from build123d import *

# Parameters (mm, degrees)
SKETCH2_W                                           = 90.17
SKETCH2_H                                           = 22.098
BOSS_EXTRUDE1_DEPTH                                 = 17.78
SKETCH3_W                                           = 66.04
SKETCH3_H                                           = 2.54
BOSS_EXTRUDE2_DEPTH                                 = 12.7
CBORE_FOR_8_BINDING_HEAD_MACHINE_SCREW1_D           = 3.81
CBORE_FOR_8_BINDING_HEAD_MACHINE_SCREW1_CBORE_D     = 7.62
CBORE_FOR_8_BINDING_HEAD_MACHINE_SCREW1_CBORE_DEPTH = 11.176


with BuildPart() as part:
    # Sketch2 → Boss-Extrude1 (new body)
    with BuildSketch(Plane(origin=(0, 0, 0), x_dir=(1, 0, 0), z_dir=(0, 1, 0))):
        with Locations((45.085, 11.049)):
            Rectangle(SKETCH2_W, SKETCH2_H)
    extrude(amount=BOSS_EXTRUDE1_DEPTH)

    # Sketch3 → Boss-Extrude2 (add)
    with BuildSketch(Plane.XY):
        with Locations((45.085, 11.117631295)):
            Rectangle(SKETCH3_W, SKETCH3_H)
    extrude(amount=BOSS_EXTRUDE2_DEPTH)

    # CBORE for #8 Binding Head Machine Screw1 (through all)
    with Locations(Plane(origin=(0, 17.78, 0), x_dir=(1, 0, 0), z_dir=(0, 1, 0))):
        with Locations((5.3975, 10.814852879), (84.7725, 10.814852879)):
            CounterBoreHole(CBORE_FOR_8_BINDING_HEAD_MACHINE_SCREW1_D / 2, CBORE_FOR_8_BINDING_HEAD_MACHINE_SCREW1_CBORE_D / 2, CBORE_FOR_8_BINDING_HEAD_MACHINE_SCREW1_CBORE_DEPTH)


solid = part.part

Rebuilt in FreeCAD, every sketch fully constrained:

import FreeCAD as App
import Part
import Sketcher
Q = App.Units.Quantity

doc = App.newDocument("Part")
body = doc.addObject("PartDesign::Body", "Body")

sketch1 = doc.addObject("Sketcher::SketchObject", "Sketch")
body.addObject(sketch1)
sketch1.AttachmentSupport = (doc.XZ_Plane, [""])
sketch1.MapMode = "FlatFace"
sketch1.addGeometry(Part.LineSegment(App.Vector(0, -22, 0), App.Vector(0, 0, 0)), False)
sketch1.addGeometry(Part.LineSegment(App.Vector(0, 0, 0), App.Vector(90, 0, 0)), False)
sketch1.addGeometry(Part.LineSegment(App.Vector(90, 0, 0), App.Vector(90, -22, 0)), False)
sketch1.addGeometry(Part.LineSegment(App.Vector(90, -22, 0), App.Vector(0, -22, 0)), False)
sketch1.addConstraint(Sketcher.Constraint("Coincident", 0, 2, 1, 1))
sketch1.addConstraint(Sketcher.Constraint("Coincident", 1, 2, 2, 1))
sketch1.addConstraint(Sketcher.Constraint("Coincident", 2, 2, 3, 1))
sketch1.addConstraint(Sketcher.Constraint("Coincident", 3, 2, 0, 1))
sketch1.addConstraint(Sketcher.Constraint("Vertical", 0))
sketch1.addConstraint(Sketcher.Constraint("Horizontal", 1))
sketch1.addConstraint(Sketcher.Constraint("Vertical", 2))
sketch1.addConstraint(Sketcher.Constraint("Horizontal", 3))
sketch1.addConstraint(Sketcher.Constraint("Coincident", 0, 2, -1, 1))
sketch1.addConstraint(Sketcher.Constraint("DistanceX", 1, 1, 1, 2, Q("3.55 in")))
sketch1.addConstraint(Sketcher.Constraint("DistanceY", 0, 1, 0, 2, Q("0.87 in")))
pad1 = doc.addObject("PartDesign::Pad", "Pad")
body.addObject(pad1)
pad1.Profile = sketch1
pad1.Length = Q("0.7 in")
pad1.Reversed = True

sketch2 = doc.addObject("Sketcher::SketchObject", "Sketch001")
body.addObject(sketch2)
sketch2.AttachmentSupport = (doc.XY_Plane, [""])
sketch2.MapMode = "FlatFace"
sketch2.addGeometry(Part.LineSegment(App.Vector(12.1, 12.4, 0), App.Vector(12.1, 9.8, 0)), False)
sketch2.addGeometry(Part.LineSegment(App.Vector(12.1, 9.8, 0), App.Vector(78.1, 9.8, 0)), False)
sketch2.addGeometry(Part.LineSegment(App.Vector(78.1, 9.8, 0), App.Vector(78.1, 12.4, 0)), False)
sketch2.addGeometry(Part.LineSegment(App.Vector(78.1, 12.4, 0), App.Vector(12.1, 12.4, 0)), False)
sketch2.addConstraint(Sketcher.Constraint("Coincident", 0, 2, 1, 1))
sketch2.addConstraint(Sketcher.Constraint("Coincident", 1, 2, 2, 1))
sketch2.addConstraint(Sketcher.Constraint("Coincident", 2, 2, 3, 1))
sketch2.addConstraint(Sketcher.Constraint("Coincident", 3, 2, 0, 1))
sketch2.addConstraint(Sketcher.Constraint("Vertical", 0))
sketch2.addConstraint(Sketcher.Constraint("Horizontal", 1))
sketch2.addConstraint(Sketcher.Constraint("Vertical", 2))
sketch2.addConstraint(Sketcher.Constraint("Horizontal", 3))
sketch2.addConstraint(Sketcher.Constraint("DistanceX", 1, 1, 1, 2, Q("2.6 in")))
sketch2.addConstraint(Sketcher.Constraint("DistanceY", 0, 2, 0, 1, Q("0.1 in")))
sketch2.addConstraint(Sketcher.Constraint("DistanceX", -1, 1, 0, 2, Q("0.475 in")))
sketch2.addConstraint(Sketcher.Constraint("DistanceY", -1, 1, 0, 2, 9.847631))
pad2 = doc.addObject("PartDesign::Pad", "Pad001")
body.addObject(pad2)
pad2.Profile = sketch2
pad2.Length = Q("0.5 in")

sketch3 = doc.addObject("Sketcher::SketchObject", "Sketch002")
body.addObject(sketch3)
sketch3.AttachmentSupport = (doc.XZ_Plane, [""])
sketch3.MapMode = "FlatFace"
sketch3.AttachmentOffset = App.Placement(App.Vector(0, 0, -0.7 * 25.4), App.Rotation())
sketch3.addGeometry(Part.Circle(App.Vector(5.4, -10.8, 0), App.Vector(0, 0, 1), 1.9), False)
sketch3.addGeometry(Part.Circle(App.Vector(84.8, -10.8, 0), App.Vector(0, 0, 1), 1.9), False)
sketch3.addConstraint(Sketcher.Constraint("Equal", 0, 1))
sketch3.addConstraint(Sketcher.Constraint("Horizontal", 0, 3, 1, 3))
sketch3.addConstraint(Sketcher.Constraint("Diameter", 0, Q("0.15 in")))
sketch3.addConstraint(Sketcher.Constraint("DistanceX", 0, 3, 1, 3, Q("3.125 in")))
sketch3.addConstraint(Sketcher.Constraint("DistanceX", -1, 1, 0, 3, Q("0.2125 in")))
sketch3.addConstraint(Sketcher.Constraint("DistanceY", 0, 3, -1, 1, 10.814853))
doc.recompute()
hole = doc.addObject("PartDesign::Hole", "Hole")
body.addObject(hole)
hole.Profile = sketch3
hole.ThreadType = "None"
hole.Diameter = Q("0.15 in")
hole.DepthType = "ThroughAll"
hole.HoleCutType = "Counterbore"
hole.HoleCutDiameter = Q("0.3 in")
hole.HoleCutDepth = Q("0.44 in")
hole.Reversed = True

doc.recompute()
